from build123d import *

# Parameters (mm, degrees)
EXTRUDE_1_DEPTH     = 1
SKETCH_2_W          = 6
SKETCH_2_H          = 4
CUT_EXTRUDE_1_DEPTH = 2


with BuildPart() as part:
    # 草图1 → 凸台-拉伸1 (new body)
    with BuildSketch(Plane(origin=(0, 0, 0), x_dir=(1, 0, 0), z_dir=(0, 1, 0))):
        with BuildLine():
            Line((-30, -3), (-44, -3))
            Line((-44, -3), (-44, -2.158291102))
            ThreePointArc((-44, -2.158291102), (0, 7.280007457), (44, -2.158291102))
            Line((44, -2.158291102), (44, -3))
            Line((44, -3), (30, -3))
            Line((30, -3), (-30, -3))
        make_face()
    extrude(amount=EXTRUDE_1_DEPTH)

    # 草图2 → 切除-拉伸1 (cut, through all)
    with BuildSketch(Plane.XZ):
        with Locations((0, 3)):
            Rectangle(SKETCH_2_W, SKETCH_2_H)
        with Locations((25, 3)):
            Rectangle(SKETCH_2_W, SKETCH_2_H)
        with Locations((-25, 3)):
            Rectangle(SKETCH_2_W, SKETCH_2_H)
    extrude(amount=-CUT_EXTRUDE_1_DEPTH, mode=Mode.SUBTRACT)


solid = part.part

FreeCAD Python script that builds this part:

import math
import FreeCAD as App
import Part
import Sketcher
from FreeCAD import Vector
Q = App.Units.Quantity


def add_polygon(sketch, points):
    """Adds a closed chain of lines whose ends are joined by coincident constraints."""
    first, n = sketch.GeometryCount, len(points)
    for a, b in zip(points, points[1:] + points[:1]):
        sketch.addGeometry(Part.LineSegment(App.Vector(*a, 0), App.Vector(*b, 0)), False)
    for i in range(n):
        sketch.addConstraint(Sketcher.Constraint("Coincident", first + i, 2, first + (i + 1) % n, 1))

doc = App.newDocument("Part")
params = doc.addObject("Spreadsheet::Sheet", "Params")
for row, (alias, value) in enumerate([
    ("sketch1_width", "88 mm"),
    ("pad1_length", "1 mm"),
    ("sketch2_width", "6 mm"),
    ("sketch2_height", "4 mm"),
], start=1):
    params.set(f"A{row}", alias)
    params.set(f"B{row}", "=" + value)
    params.setAlias(f"B{row}", alias)

body = doc.addObject("PartDesign::Body", "Body")

# Sketch on XZ plane
sketch1 = body.newObject("Sketcher::SketchObject", "Sketch")
sketch1.AttachmentSupport = (doc.getObject("XZ_Plane"), [""])
sketch1.MapMode = "FlatFace"
sketch1.addGeometry(Part.LineSegment(Vector(-44, 2.158291, 0), Vector(-44, 3, 0)), False)
sketch1.addGeometry(Part.LineSegment(Vector(-44, 3, 0), Vector(44, 3, 0)), False)
sketch1.addGeometry(Part.LineSegment(Vector(44, 3, 0), Vector(44, 2.158291, 0)), False)
sketch1.addGeometry(Part.ArcOfCircle(Part.Circle(Vector(0, 100, 0), Vector(0, 0, 1), 107.280007), math.radians(-114.213734), math.radians(-65.786266)), False)
sketch1.addConstraint(Sketcher.Constraint("Coincident", 0, 2, 1, 1))
sketch1.addConstraint(Sketcher.Constraint("Coincident", 1, 2, 2, 1))
sketch1.addConstraint(Sketcher.Constraint("Coincident", 2, 2, 3, 2))
sketch1.addConstraint(Sketcher.Constraint("Coincident", 3, 1, 0, 1))
sketch1.addConstraint(Sketcher.Constraint("Vertical", 0))
sketch1.addConstraint(Sketcher.Constraint("Horizontal", 1))
sketch1.addConstraint(Sketcher.Constraint("Vertical", 2))
sketch1.addConstraint(Sketcher.Constraint("Symmetric", 2, 2, 3, 1, -2))
sketch1.addConstraint(Sketcher.Constraint("DistanceX", 1, 1, 1, 2, Q("88 mm")))
sketch1.addConstraint(Sketcher.Constraint("DistanceY", -1, 1, 3, 3, Q("100 mm")))
sketch1.addConstraint(Sketcher.Constraint("DistanceY", -1, 1, 0, 2, Q("3 mm")))
sketch1.addConstraint(Sketcher.Constraint("Radius", 3, Q("107.280007 mm")))
sketch1.setExpression("Constraints[8]", "Params.sketch1_width")
pad1 = body.newObject("PartDesign::Pad", "Pad")
pad1.Profile = sketch1
pad1.setExpression("Length", "Params.pad1_length")
pad1.Reversed = True

# Sketch on XZ plane
sketch2 = body.newObject("Sketcher::SketchObject", "Sketch001")
sketch2.AttachmentSupport = (doc.getObject("XZ_Plane"), [""])
sketch2.MapMode = "FlatFace"
add_polygon(sketch2, [(-3, 5), (-3, 1), (3, 1), (3, 5)])  # lines 0-3
add_polygon(sketch2, [(22, 5), (22, 1), (28, 1), (28, 5)])  # lines 4-7
add_polygon(sketch2, [(-28, 5), (-28, 1), (-22, 1), (-22, 5)])  # lines 8-11
sketch2.addConstraint(Sketcher.Constraint("Vertical", 0))
sketch2.addConstraint(Sketcher.Constraint("Horizontal", 1))
sketch2.addConstraint(Sketcher.Constraint("Vertical", 2))
sketch2.addConstraint(Sketcher.Constraint("Horizontal", 3))
sketch2.addConstraint(Sketcher.Constraint("Vertical", 4))
sketch2.addConstraint(Sketcher.Constraint("Horizontal", 5))
sketch2.addConstraint(Sketcher.Constraint("Vertical", 6))
sketch2.addConstraint(Sketcher.Constraint("Horizontal", 7))
sketch2.addConstraint(Sketcher.Constraint("Vertical", 8))
sketch2.addConstraint(Sketcher.Constraint("Horizontal", 9))
sketch2.addConstraint(Sketcher.Constraint("Vertical", 10))
sketch2.addConstraint(Sketcher.Constraint("Horizontal", 11))
sketch2.addConstraint(Sketcher.Constraint("Symmetric", 5, 2, 8, 2, -2))
sketch2.addConstraint(Sketcher.Constraint("Symmetric", 7, 2, 10, 2, -2))
sketch2.addConstraint(Sketcher.Constraint("Horizontal", 1, 2, 4, 2))
sketch2.addConstraint(Sketcher.Constraint("Horizontal", 3, 2, 6, 2))
sketch2.addConstraint(Sketcher.Constraint("Equal", 3, 5))
sketch2.addConstraint(Sketcher.Constraint("DistanceX", 1, 1, 1, 2, Q("6 mm")))
sketch2.addConstraint(Sketcher.Constraint("DistanceY", 0, 2, 0, 1, Q("4 mm")))
sketch2.addConstraint(Sketcher.Constraint("DistanceX", 0, 2, -1, 1, Q("3 mm")))
sketch2.addConstraint(Sketcher.Constraint("DistanceY", -1, 1, 0, 2, Q("1 mm")))
sketch2.addConstraint(Sketcher.Constraint("DistanceX", -1, 1, 4, 2, Q("22 mm")))
sketch2.setExpression("Constraints[29]", "Params.sketch2_width")
sketch2.setExpression("Constraints[30]", "Params.sketch2_height")
pocket1 = body.newObject("PartDesign::Pocket", "Pocket")
pocket1.Profile = sketch2
pocket1.Type = "ThroughAll"

doc.recompute()
